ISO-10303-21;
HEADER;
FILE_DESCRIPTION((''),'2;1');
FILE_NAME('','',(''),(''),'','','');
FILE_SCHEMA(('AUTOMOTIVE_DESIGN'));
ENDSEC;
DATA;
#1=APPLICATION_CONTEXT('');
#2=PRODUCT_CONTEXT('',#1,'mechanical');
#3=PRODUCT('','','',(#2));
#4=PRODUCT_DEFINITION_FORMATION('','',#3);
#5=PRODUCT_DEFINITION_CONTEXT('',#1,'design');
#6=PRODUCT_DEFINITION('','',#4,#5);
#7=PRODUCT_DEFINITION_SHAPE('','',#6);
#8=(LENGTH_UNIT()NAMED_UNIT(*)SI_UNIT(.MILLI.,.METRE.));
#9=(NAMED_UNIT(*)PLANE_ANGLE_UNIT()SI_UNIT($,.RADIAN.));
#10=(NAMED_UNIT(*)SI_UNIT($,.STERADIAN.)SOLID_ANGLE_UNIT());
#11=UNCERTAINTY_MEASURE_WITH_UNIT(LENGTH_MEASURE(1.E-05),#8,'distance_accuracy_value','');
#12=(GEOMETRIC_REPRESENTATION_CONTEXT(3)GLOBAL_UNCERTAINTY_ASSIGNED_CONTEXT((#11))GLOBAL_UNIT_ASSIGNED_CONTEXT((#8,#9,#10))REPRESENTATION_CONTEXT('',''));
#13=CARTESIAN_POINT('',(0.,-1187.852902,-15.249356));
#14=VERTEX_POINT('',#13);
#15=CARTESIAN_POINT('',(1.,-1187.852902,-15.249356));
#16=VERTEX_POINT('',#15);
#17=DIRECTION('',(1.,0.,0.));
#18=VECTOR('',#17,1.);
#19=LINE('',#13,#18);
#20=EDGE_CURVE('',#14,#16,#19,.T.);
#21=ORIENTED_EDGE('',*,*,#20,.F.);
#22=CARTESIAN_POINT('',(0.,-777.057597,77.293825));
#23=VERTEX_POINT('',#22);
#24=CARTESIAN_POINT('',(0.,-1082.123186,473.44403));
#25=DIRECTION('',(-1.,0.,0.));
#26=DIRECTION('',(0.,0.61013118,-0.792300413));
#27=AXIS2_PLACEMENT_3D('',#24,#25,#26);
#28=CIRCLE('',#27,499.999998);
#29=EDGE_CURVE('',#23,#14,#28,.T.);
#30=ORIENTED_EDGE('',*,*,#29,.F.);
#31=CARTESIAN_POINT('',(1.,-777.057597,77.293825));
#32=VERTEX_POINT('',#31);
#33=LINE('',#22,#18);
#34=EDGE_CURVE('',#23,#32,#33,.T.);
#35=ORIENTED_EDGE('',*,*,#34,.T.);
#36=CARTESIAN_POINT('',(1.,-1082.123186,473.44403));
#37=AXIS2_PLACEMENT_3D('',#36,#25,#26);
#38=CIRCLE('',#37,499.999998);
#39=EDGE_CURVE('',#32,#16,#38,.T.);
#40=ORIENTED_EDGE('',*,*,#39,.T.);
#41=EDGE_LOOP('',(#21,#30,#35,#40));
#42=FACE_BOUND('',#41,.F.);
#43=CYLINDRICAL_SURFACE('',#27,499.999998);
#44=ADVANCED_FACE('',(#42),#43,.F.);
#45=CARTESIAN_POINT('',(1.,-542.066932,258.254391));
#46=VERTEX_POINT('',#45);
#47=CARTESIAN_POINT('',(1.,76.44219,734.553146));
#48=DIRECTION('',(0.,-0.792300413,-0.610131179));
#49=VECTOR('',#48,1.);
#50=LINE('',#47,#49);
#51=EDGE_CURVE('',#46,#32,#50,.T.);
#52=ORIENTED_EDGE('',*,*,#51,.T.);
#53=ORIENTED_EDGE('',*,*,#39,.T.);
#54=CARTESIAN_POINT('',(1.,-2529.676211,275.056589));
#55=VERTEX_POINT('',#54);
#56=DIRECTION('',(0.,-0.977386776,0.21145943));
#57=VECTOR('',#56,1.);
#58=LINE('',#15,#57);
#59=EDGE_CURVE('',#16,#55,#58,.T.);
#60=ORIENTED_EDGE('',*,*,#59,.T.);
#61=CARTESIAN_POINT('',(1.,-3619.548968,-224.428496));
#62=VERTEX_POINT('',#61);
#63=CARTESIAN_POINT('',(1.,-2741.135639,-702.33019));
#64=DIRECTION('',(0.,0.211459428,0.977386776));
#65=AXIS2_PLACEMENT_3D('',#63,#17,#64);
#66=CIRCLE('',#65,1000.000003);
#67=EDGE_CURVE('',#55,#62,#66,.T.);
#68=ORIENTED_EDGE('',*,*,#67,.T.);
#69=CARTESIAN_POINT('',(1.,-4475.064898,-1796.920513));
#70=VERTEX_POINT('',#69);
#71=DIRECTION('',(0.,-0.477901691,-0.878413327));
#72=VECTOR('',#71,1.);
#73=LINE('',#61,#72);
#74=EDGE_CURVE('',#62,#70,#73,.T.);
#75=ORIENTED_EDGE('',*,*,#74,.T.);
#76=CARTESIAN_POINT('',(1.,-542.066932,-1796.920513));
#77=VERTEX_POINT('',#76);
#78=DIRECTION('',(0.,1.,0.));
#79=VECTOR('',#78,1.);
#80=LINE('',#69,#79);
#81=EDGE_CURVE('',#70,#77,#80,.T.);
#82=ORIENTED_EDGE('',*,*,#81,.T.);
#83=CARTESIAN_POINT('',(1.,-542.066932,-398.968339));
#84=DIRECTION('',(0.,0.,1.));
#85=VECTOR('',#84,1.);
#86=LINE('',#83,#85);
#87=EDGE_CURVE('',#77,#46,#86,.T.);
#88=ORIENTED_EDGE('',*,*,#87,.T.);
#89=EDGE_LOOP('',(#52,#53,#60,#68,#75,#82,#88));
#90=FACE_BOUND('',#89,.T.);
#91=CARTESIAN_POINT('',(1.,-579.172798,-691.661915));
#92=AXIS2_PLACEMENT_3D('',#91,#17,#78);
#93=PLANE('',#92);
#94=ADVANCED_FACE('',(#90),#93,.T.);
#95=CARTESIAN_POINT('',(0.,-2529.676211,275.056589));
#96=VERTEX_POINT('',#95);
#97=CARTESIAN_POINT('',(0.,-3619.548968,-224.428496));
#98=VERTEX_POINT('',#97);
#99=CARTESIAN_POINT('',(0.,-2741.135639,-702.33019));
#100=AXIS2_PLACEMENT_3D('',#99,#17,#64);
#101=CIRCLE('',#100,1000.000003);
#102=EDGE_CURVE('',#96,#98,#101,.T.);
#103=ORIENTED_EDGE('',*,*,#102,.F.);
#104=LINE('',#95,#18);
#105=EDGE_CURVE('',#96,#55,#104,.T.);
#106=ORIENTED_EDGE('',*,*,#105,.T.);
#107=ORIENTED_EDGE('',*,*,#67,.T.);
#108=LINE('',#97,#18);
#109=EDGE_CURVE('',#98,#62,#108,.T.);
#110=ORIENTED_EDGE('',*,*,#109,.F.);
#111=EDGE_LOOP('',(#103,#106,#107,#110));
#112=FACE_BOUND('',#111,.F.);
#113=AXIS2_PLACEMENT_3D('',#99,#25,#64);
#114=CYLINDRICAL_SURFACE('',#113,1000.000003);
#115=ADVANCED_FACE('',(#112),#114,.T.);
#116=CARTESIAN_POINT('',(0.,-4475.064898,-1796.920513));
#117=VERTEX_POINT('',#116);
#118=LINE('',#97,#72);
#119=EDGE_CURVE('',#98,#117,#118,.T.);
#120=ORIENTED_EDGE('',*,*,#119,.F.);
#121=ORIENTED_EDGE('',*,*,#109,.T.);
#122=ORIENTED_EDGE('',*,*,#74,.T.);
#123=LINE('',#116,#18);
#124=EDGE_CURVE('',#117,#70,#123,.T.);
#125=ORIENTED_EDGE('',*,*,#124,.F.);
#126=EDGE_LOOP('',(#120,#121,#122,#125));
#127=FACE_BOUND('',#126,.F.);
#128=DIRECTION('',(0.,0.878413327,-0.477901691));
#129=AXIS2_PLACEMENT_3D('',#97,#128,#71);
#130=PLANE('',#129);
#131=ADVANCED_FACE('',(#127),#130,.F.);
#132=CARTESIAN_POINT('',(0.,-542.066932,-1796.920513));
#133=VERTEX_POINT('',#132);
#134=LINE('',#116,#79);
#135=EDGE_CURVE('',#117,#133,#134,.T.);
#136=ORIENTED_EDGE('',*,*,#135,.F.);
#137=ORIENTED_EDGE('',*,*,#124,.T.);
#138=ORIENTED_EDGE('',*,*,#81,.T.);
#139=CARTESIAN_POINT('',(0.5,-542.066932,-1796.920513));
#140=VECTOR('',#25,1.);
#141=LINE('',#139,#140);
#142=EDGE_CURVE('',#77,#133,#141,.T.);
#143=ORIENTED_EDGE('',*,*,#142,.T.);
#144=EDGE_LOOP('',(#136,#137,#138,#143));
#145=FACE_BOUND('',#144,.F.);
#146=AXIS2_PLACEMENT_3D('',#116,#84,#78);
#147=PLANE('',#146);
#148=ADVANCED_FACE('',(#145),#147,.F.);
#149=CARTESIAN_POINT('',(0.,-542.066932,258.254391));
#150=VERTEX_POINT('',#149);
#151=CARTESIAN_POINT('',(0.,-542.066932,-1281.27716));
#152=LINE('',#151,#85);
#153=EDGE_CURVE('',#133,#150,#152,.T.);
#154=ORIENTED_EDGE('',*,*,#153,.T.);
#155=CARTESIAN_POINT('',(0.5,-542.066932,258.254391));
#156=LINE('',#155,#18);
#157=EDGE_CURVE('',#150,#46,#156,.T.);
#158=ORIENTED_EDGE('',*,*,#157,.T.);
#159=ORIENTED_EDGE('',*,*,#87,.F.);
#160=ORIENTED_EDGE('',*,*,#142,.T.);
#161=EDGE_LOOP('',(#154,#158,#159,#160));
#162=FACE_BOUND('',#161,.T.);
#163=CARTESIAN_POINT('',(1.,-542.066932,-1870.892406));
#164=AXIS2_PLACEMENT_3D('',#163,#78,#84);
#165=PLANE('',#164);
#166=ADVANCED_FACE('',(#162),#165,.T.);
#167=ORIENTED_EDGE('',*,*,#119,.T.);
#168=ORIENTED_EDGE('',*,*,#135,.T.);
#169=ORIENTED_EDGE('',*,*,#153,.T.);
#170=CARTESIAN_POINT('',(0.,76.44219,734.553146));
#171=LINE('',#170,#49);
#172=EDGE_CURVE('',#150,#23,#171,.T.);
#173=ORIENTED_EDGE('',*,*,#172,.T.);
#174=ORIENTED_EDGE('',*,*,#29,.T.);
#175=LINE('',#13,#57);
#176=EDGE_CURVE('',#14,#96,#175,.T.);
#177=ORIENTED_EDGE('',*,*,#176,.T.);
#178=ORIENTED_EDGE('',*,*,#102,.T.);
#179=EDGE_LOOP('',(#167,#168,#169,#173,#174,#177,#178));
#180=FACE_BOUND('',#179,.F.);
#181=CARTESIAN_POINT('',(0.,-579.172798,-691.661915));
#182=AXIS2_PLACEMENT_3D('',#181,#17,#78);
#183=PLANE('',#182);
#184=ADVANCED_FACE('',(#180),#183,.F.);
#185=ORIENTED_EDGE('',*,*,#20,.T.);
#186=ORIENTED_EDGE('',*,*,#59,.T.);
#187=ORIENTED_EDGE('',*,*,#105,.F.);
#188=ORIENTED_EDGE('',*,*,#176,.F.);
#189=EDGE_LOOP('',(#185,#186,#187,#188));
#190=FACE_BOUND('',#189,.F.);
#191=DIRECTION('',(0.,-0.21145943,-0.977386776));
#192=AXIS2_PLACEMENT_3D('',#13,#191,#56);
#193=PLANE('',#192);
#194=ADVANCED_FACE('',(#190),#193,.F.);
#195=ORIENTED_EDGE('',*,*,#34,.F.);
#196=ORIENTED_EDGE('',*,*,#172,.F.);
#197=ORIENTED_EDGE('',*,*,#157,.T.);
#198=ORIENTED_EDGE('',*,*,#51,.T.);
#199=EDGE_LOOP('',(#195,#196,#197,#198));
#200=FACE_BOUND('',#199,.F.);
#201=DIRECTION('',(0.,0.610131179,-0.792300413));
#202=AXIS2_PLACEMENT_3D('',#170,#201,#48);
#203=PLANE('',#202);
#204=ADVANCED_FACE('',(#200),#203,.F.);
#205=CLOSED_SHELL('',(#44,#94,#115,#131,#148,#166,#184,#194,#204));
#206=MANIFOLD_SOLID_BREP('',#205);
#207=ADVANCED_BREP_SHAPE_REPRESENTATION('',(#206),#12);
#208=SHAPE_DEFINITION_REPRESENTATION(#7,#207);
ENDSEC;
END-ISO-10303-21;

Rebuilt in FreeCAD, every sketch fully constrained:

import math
import FreeCAD as App
import Part
import Sketcher
Q = App.Units.Quantity

doc = App.newDocument("Part")
body = doc.addObject("PartDesign::Body", "Body")

sketch1 = doc.addObject("Sketcher::SketchObject", "Sketch")
body.addObject(sketch1)
sketch1.AttachmentSupport = (doc.YZ_Plane, [""])
sketch1.MapMode = "FlatFace"
sketch1.addGeometry([
    Part.LineSegment(App.Vector(-3619.548968, -224.428496, 0), App.Vector(-4475.064898, -1796.920513, 0)),
    Part.LineSegment(App.Vector(-4475.064898, -1796.920513, 0), App.Vector(-25.064898, -1796.920513, 0)),
    Part.LineSegment(App.Vector(-25.064898, -1796.920513, 0), App.Vector(-25.064898, 277.382151, 0)),
    Part.LineSegment(App.Vector(-25.064898, 277.382151, 0), App.Vector(974.935102, 277.382151, 0)),
    Part.LineSegment(App.Vector(974.935102, 277.382151, 0), App.Vector(974.935102, -1796.920513, 0)),
    Part.LineSegment(App.Vector(974.935102, -1796.920513, 0), App.Vector(2424.935102, -1796.920513, 0)),
    Part.LineSegment(App.Vector(2424.935102, -1796.920513, 0), App.Vector(2424.935102, -362.4883, 0)),
    Part.LineSegment(App.Vector(2424.935102, -362.4883, 0), App.Vector(1982.259828, -186.180527, 0)),
    Part.ArcOfCircle(Part.Circle(App.Vector(2093.26314, 92.527676, 0), App.Vector(0, 0, 1), 299.999996), math.radians(-150.671968), math.radians(-111.716298)),
    Part.LineSegment(App.Vector(1831.714223, -54.41504, 0), App.Vector(1558.403102, 432.061794, 0)),
    Part.ArcOfCircle(Part.Circle(App.Vector(686.573369, -57.747268, 0), App.Vector(0, 0, 1), 1000), math.radians(29.328033), math.radians(127.598989)),
    Part.LineSegment(App.Vector(76.44219, 734.553146, 0), App.Vector(-777.057597, 77.293825, 0)),
    Part.ArcOfCircle(Part.Circle(App.Vector(-1082.123186, 473.44403, 0), App.Vector(0, 0, 1), 499.999998), math.radians(-102.207892), math.radians(-52.401011)),
    Part.LineSegment(App.Vector(-1187.852902, -15.249356, 0), App.Vector(-2529.676211, 275.056589, 0)),
    Part.ArcOfCircle(Part.Circle(App.Vector(-2741.135639, -702.33019, 0), App.Vector(0, 0, 1), 1000.000003), math.radians(77.792108), math.radians(151.451552)),
], False)
sketch1.addConstraint([
    Sketcher.Constraint("Coincident", 0, 2, 1, 1),
    Sketcher.Constraint("Coincident", 1, 2, 2, 1),
    Sketcher.Constraint("Coincident", 2, 2, 3, 1),
    Sketcher.Constraint("Coincident", 3, 2, 4, 1),
    Sketcher.Constraint("Coincident", 4, 2, 5, 1),
    Sketcher.Constraint("Coincident", 5, 2, 6, 1),
    Sketcher.Constraint("Coincident", 6, 2, 7, 1),
    Sketcher.Constraint("Tangent", 7, 2, 8, 2),
    Sketcher.Constraint("Tangent", 8, 1, 9, 1),
    Sketcher.Constraint("Tangent", 9, 2, 10, 1),
    Sketcher.Constraint("Coincident", 10, 2, 11, 1),
    Sketcher.Constraint("Tangent", 11, 2, 12, 2),
    Sketcher.Constraint("Tangent", 12, 1, 13, 1),
    Sketcher.Constraint("Coincident", 13, 2, 14, 1),
    Sketcher.Constraint("Coincident", 14, 2, 0, 1),
    Sketcher.Constraint("Horizontal", 1),
    Sketcher.Constraint("Vertical", 2),
    Sketcher.Constraint("Horizontal", 3),
    Sketcher.Constraint("Vertical", 4),
    Sketcher.Constraint("Horizontal", 5),
    Sketcher.Constraint("Vertical", 6),
    Sketcher.Constraint("Horizontal", 1, 2, 4, 2),
    Sketcher.Constraint("Radius", 10, Q("1000 mm")),
    Sketcher.Constraint("Radius", 12, Q("499.999998 mm")),
    Sketcher.Constraint("DistanceX", 1, 1, 1, 2, Q("4450 mm")),
    Sketcher.Constraint("DistanceX", 3, 1, 3, 2, Q("1000 mm")),
    Sketcher.Constraint("DistanceX", 5, 1, 5, 2, Q("1450 mm")),
    Sketcher.Constraint("Radius", 8, Q("299.999996 mm")),
    Sketcher.Constraint("Radius", 14, Q("1000.000003 mm")),
    Sketcher.Constraint("DistanceX", 3, 2, 9, 2, Q("583.468 mm")),
    Sketcher.Constraint("DistanceX", -1, 1, 3, 2, Q("974.935102 mm")),
    Sketcher.Constraint("DistanceY", 6, 2, -1, 1, Q("362.4883 mm")),
    Sketcher.Constraint("DistanceX", 11, 2, 2, 2, Q("751.992699 mm")),
    Sketcher.Constraint("Distance", 9, Q("557.995232 mm")),
    Sketcher.Constraint("Distance", 11, Q("1077.242638 mm")),
    Sketcher.Constraint("DistanceY", 2, 1, 2, 2, Q("2074.302664 mm")),
    Sketcher.Constraint("DistanceY", 6, 1, 6, 2, Q("1434.432213 mm")),
    Sketcher.Constraint("DistanceX", -1, 1, 8, 3, Q("2093.26314 mm")),
    Sketcher.Constraint("DistanceY", -1, 1, 12, 3, Q("473.44403 mm")),
    Sketcher.Constraint("DistanceX", 14, 3, -1, 1, Q("2741.135639 mm")),
    Sketcher.Constraint("DistanceY", 14, 3, -1, 1, Q("702.33019 mm")),
    Sketcher.Constraint("DistanceX", -1, 1, 7, 2, Q("1982.259828 mm")),
    Sketcher.Constraint("DistanceX", 13, 2, -1, 1, Q("2529.676211 mm")),
    Sketcher.Constraint("Distance", 0, Q("1790.150455 mm")),
])
pad1 = doc.addObject("PartDesign::Pad", "Pad")
body.addObject(pad1)
pad1.Profile = sketch1
pad1.Length = 1

sketch2 = doc.addObject("Sketcher::SketchObject", "Sketch001")
body.addObject(sketch2)
sketch2.AttachmentSupport = (doc.YZ_Plane, [""])
sketch2.MapMode = "FlatFace"
sketch2.AttachmentOffset = App.Placement(App.Vector(0, 0, 1), App.Rotation())
sketch2.addGeometry([
    Part.LineSegment(App.Vector(-542.066932, 1072.955728, 0), App.Vector(-542.066932, -1870.892406, 0)),
    Part.LineSegment(App.Vector(-542.066932, -1870.892406, 0), App.Vector(2683.42495, -1870.892406, 0)),
    Part.LineSegment(App.Vector(2683.42495, -1870.892406, 0), App.Vector(2683.42495, 1072.955728, 0)),
    Part.LineSegment(App.Vector(2683.42495, 1072.955728, 0), App.Vector(-542.066932, 1072.955728, 0)),
], False)
sketch2.addConstraint([
    Sketcher.Constraint("Coincident", 0, 2, 1, 1),
    Sketcher.Constraint("Coincident", 1, 2, 2, 1),
    Sketcher.Constraint("Coincident", 2, 2, 3, 1),
    Sketcher.Constraint("Coincident", 3, 2, 0, 1),
    Sketcher.Constraint("Vertical", 0),
    Sketcher.Constraint("Horizontal", 1),
    Sketcher.Constraint("Vertical", 2),
    Sketcher.Constraint("Horizontal", 3),
    Sketcher.Constraint("DistanceX", 1, 1, 1, 2, Q("3225.491882 mm")),
    Sketcher.Constraint("DistanceY", 0, 2, 0, 1, Q("2943.848134 mm")),
    Sketcher.Constraint("DistanceX", 0, 2, -1, 1, Q("542.066932 mm")),
    Sketcher.Constraint("DistanceY", -1, 1, 2, 2, Q("1072.955728 mm")),
])
pocket1 = doc.addObject("PartDesign::Pocket", "Pocket")
body.addObject(pocket1)
pocket1.Profile = sketch2
pocket1.Length = 1000

doc.recompute()
